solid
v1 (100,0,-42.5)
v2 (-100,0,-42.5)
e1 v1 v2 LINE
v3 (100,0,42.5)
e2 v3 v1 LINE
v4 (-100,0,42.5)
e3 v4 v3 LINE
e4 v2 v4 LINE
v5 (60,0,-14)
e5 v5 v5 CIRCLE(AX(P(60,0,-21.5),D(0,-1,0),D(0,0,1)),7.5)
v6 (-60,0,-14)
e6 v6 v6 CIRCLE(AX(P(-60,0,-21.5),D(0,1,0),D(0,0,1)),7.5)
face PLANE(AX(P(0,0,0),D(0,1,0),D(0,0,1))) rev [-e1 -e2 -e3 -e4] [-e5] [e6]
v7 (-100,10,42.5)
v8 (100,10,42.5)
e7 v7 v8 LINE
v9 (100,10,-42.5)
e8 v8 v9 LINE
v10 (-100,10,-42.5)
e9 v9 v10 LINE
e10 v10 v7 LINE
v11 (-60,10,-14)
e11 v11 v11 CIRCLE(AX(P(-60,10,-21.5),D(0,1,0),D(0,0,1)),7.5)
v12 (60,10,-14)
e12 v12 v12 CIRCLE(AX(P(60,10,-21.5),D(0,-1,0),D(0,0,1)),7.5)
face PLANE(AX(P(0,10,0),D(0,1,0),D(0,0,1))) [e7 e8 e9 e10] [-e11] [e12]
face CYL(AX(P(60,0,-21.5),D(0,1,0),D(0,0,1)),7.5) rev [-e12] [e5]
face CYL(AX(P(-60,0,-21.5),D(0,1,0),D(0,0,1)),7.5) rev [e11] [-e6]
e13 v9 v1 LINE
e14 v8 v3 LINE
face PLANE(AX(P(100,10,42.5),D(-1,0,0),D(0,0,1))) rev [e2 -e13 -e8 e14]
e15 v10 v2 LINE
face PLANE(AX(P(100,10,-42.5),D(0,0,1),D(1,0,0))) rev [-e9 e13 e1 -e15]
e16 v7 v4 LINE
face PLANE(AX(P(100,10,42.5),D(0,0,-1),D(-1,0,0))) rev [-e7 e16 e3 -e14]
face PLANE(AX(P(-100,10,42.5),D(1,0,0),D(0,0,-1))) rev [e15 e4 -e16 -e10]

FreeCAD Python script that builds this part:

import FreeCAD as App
import Part
import Sketcher
Q = App.Units.Quantity

doc = App.newDocument("Part")
params = doc.addObject("Spreadsheet::Sheet", "Params")
for row, (alias, value) in enumerate([
    ("sketch1_width", "200 mm"),
    ("sketch1_height", "85 mm"),
    ("pad1_length", "10 mm"),
    ("sketch2_diameter", "15 mm"),
    ("pocket1_length", "10 mm"),
], start=1):
    params.set(f"A{row}", alias)
    params.set(f"B{row}", "=" + value)
    params.setAlias(f"B{row}", alias)

body = doc.addObject("PartDesign::Body", "Body")

# Sketch on XZ plane
sketch1 = body.newObject("Sketcher::SketchObject", "Sketch")
sketch1.AttachmentSupport = (doc.getObject("XZ_Plane"), [""])
sketch1.MapMode = "FlatFace"
sketch1.addGeometry(Part.LineSegment(App.Vector(-100, -42, 0), App.Vector(-100, 42, 0)), False)
sketch1.addGeometry(Part.LineSegment(App.Vector(-100, 42, 0), App.Vector(100, 42, 0)), False)
sketch1.addGeometry(Part.LineSegment(App.Vector(100, 42, 0), App.Vector(100, -42, 0)), False)
sketch1.addGeometry(Part.LineSegment(App.Vector(100, -42, 0), App.Vector(-100, -42, 0)), False)
sketch1.addConstraint(Sketcher.Constraint("Coincident", 0, 2, 1, 1))
sketch1.addConstraint(Sketcher.Constraint("Coincident", 1, 2, 2, 1))
sketch1.addConstraint(Sketcher.Constraint("Coincident", 2, 2, 3, 1))
sketch1.addConstraint(Sketcher.Constraint("Coincident", 3, 2, 0, 1))
sketch1.addConstraint(Sketcher.Constraint("Vertical", 0))
sketch1.addConstraint(Sketcher.Constraint("Horizontal", 1))
sketch1.addConstraint(Sketcher.Constraint("Vertical", 2))
sketch1.addConstraint(Sketcher.Constraint("Horizontal", 3))
sketch1.addConstraint(Sketcher.Constraint("Symmetric", 0, 2, 2, 2, -1, 1))
sketch1.addConstraint(Sketcher.Constraint("DistanceX", 1, 1, 1, 2, Q("200 mm")))
sketch1.addConstraint(Sketcher.Constraint("DistanceY", 0, 1, 0, 2, Q("85 mm")))
sketch1.setExpression("Constraints[9]", "Params.sketch1_width")
sketch1.setExpression("Constraints[10]", "Params.sketch1_height")
pad1 = body.newObject("PartDesign::Pad", "Pad")
pad1.Profile = sketch1
pad1.setExpression("Length", "Params.pad1_length")
pad1.Reversed = True

# Sketch on XZ plane
sketch2 = body.newObject("Sketcher::SketchObject", "Sketch001")
sketch2.AttachmentSupport = (doc.getObject("XZ_Plane"), [""])
sketch2.MapMode = "FlatFace"
sketch2.AttachmentOffset = App.Placement(App.Vector(0, 0, -10), App.Rotation())
sketch2.addGeometry(Part.Circle(App.Vector(-60, -22, 0), App.Vector(0, 0, 1), 8), False)
sketch2.addConstraint(Sketcher.Constraint("Diameter", 0, Q("15 mm")))
sketch2.addConstraint(Sketcher.Constraint("DistanceX", 0, 3, -1, 1, Q("60 mm")))
sketch2.addConstraint(Sketcher.Constraint("DistanceY", 0, 3, -1, 1, Q("21.5 mm")))
sketch2.setExpression("Constraints[0]", "Params.sketch2_diameter")
pocket1 = body.newObject("PartDesign::Pocket", "Pocket")
pocket1.Profile = sketch2
pocket1.setExpression("Length", "Params.pocket1_length")
pocket1.Reversed = True
doc.recompute()

mirrored = body.newObject("PartDesign::Mirrored", "Mirrored")
mirrored.Originals = [pocket1]
mirrored.MirrorPlane = (doc.getObject("YZ_Plane"), [""])
body.Tip = mirrored

doc.recompute()
